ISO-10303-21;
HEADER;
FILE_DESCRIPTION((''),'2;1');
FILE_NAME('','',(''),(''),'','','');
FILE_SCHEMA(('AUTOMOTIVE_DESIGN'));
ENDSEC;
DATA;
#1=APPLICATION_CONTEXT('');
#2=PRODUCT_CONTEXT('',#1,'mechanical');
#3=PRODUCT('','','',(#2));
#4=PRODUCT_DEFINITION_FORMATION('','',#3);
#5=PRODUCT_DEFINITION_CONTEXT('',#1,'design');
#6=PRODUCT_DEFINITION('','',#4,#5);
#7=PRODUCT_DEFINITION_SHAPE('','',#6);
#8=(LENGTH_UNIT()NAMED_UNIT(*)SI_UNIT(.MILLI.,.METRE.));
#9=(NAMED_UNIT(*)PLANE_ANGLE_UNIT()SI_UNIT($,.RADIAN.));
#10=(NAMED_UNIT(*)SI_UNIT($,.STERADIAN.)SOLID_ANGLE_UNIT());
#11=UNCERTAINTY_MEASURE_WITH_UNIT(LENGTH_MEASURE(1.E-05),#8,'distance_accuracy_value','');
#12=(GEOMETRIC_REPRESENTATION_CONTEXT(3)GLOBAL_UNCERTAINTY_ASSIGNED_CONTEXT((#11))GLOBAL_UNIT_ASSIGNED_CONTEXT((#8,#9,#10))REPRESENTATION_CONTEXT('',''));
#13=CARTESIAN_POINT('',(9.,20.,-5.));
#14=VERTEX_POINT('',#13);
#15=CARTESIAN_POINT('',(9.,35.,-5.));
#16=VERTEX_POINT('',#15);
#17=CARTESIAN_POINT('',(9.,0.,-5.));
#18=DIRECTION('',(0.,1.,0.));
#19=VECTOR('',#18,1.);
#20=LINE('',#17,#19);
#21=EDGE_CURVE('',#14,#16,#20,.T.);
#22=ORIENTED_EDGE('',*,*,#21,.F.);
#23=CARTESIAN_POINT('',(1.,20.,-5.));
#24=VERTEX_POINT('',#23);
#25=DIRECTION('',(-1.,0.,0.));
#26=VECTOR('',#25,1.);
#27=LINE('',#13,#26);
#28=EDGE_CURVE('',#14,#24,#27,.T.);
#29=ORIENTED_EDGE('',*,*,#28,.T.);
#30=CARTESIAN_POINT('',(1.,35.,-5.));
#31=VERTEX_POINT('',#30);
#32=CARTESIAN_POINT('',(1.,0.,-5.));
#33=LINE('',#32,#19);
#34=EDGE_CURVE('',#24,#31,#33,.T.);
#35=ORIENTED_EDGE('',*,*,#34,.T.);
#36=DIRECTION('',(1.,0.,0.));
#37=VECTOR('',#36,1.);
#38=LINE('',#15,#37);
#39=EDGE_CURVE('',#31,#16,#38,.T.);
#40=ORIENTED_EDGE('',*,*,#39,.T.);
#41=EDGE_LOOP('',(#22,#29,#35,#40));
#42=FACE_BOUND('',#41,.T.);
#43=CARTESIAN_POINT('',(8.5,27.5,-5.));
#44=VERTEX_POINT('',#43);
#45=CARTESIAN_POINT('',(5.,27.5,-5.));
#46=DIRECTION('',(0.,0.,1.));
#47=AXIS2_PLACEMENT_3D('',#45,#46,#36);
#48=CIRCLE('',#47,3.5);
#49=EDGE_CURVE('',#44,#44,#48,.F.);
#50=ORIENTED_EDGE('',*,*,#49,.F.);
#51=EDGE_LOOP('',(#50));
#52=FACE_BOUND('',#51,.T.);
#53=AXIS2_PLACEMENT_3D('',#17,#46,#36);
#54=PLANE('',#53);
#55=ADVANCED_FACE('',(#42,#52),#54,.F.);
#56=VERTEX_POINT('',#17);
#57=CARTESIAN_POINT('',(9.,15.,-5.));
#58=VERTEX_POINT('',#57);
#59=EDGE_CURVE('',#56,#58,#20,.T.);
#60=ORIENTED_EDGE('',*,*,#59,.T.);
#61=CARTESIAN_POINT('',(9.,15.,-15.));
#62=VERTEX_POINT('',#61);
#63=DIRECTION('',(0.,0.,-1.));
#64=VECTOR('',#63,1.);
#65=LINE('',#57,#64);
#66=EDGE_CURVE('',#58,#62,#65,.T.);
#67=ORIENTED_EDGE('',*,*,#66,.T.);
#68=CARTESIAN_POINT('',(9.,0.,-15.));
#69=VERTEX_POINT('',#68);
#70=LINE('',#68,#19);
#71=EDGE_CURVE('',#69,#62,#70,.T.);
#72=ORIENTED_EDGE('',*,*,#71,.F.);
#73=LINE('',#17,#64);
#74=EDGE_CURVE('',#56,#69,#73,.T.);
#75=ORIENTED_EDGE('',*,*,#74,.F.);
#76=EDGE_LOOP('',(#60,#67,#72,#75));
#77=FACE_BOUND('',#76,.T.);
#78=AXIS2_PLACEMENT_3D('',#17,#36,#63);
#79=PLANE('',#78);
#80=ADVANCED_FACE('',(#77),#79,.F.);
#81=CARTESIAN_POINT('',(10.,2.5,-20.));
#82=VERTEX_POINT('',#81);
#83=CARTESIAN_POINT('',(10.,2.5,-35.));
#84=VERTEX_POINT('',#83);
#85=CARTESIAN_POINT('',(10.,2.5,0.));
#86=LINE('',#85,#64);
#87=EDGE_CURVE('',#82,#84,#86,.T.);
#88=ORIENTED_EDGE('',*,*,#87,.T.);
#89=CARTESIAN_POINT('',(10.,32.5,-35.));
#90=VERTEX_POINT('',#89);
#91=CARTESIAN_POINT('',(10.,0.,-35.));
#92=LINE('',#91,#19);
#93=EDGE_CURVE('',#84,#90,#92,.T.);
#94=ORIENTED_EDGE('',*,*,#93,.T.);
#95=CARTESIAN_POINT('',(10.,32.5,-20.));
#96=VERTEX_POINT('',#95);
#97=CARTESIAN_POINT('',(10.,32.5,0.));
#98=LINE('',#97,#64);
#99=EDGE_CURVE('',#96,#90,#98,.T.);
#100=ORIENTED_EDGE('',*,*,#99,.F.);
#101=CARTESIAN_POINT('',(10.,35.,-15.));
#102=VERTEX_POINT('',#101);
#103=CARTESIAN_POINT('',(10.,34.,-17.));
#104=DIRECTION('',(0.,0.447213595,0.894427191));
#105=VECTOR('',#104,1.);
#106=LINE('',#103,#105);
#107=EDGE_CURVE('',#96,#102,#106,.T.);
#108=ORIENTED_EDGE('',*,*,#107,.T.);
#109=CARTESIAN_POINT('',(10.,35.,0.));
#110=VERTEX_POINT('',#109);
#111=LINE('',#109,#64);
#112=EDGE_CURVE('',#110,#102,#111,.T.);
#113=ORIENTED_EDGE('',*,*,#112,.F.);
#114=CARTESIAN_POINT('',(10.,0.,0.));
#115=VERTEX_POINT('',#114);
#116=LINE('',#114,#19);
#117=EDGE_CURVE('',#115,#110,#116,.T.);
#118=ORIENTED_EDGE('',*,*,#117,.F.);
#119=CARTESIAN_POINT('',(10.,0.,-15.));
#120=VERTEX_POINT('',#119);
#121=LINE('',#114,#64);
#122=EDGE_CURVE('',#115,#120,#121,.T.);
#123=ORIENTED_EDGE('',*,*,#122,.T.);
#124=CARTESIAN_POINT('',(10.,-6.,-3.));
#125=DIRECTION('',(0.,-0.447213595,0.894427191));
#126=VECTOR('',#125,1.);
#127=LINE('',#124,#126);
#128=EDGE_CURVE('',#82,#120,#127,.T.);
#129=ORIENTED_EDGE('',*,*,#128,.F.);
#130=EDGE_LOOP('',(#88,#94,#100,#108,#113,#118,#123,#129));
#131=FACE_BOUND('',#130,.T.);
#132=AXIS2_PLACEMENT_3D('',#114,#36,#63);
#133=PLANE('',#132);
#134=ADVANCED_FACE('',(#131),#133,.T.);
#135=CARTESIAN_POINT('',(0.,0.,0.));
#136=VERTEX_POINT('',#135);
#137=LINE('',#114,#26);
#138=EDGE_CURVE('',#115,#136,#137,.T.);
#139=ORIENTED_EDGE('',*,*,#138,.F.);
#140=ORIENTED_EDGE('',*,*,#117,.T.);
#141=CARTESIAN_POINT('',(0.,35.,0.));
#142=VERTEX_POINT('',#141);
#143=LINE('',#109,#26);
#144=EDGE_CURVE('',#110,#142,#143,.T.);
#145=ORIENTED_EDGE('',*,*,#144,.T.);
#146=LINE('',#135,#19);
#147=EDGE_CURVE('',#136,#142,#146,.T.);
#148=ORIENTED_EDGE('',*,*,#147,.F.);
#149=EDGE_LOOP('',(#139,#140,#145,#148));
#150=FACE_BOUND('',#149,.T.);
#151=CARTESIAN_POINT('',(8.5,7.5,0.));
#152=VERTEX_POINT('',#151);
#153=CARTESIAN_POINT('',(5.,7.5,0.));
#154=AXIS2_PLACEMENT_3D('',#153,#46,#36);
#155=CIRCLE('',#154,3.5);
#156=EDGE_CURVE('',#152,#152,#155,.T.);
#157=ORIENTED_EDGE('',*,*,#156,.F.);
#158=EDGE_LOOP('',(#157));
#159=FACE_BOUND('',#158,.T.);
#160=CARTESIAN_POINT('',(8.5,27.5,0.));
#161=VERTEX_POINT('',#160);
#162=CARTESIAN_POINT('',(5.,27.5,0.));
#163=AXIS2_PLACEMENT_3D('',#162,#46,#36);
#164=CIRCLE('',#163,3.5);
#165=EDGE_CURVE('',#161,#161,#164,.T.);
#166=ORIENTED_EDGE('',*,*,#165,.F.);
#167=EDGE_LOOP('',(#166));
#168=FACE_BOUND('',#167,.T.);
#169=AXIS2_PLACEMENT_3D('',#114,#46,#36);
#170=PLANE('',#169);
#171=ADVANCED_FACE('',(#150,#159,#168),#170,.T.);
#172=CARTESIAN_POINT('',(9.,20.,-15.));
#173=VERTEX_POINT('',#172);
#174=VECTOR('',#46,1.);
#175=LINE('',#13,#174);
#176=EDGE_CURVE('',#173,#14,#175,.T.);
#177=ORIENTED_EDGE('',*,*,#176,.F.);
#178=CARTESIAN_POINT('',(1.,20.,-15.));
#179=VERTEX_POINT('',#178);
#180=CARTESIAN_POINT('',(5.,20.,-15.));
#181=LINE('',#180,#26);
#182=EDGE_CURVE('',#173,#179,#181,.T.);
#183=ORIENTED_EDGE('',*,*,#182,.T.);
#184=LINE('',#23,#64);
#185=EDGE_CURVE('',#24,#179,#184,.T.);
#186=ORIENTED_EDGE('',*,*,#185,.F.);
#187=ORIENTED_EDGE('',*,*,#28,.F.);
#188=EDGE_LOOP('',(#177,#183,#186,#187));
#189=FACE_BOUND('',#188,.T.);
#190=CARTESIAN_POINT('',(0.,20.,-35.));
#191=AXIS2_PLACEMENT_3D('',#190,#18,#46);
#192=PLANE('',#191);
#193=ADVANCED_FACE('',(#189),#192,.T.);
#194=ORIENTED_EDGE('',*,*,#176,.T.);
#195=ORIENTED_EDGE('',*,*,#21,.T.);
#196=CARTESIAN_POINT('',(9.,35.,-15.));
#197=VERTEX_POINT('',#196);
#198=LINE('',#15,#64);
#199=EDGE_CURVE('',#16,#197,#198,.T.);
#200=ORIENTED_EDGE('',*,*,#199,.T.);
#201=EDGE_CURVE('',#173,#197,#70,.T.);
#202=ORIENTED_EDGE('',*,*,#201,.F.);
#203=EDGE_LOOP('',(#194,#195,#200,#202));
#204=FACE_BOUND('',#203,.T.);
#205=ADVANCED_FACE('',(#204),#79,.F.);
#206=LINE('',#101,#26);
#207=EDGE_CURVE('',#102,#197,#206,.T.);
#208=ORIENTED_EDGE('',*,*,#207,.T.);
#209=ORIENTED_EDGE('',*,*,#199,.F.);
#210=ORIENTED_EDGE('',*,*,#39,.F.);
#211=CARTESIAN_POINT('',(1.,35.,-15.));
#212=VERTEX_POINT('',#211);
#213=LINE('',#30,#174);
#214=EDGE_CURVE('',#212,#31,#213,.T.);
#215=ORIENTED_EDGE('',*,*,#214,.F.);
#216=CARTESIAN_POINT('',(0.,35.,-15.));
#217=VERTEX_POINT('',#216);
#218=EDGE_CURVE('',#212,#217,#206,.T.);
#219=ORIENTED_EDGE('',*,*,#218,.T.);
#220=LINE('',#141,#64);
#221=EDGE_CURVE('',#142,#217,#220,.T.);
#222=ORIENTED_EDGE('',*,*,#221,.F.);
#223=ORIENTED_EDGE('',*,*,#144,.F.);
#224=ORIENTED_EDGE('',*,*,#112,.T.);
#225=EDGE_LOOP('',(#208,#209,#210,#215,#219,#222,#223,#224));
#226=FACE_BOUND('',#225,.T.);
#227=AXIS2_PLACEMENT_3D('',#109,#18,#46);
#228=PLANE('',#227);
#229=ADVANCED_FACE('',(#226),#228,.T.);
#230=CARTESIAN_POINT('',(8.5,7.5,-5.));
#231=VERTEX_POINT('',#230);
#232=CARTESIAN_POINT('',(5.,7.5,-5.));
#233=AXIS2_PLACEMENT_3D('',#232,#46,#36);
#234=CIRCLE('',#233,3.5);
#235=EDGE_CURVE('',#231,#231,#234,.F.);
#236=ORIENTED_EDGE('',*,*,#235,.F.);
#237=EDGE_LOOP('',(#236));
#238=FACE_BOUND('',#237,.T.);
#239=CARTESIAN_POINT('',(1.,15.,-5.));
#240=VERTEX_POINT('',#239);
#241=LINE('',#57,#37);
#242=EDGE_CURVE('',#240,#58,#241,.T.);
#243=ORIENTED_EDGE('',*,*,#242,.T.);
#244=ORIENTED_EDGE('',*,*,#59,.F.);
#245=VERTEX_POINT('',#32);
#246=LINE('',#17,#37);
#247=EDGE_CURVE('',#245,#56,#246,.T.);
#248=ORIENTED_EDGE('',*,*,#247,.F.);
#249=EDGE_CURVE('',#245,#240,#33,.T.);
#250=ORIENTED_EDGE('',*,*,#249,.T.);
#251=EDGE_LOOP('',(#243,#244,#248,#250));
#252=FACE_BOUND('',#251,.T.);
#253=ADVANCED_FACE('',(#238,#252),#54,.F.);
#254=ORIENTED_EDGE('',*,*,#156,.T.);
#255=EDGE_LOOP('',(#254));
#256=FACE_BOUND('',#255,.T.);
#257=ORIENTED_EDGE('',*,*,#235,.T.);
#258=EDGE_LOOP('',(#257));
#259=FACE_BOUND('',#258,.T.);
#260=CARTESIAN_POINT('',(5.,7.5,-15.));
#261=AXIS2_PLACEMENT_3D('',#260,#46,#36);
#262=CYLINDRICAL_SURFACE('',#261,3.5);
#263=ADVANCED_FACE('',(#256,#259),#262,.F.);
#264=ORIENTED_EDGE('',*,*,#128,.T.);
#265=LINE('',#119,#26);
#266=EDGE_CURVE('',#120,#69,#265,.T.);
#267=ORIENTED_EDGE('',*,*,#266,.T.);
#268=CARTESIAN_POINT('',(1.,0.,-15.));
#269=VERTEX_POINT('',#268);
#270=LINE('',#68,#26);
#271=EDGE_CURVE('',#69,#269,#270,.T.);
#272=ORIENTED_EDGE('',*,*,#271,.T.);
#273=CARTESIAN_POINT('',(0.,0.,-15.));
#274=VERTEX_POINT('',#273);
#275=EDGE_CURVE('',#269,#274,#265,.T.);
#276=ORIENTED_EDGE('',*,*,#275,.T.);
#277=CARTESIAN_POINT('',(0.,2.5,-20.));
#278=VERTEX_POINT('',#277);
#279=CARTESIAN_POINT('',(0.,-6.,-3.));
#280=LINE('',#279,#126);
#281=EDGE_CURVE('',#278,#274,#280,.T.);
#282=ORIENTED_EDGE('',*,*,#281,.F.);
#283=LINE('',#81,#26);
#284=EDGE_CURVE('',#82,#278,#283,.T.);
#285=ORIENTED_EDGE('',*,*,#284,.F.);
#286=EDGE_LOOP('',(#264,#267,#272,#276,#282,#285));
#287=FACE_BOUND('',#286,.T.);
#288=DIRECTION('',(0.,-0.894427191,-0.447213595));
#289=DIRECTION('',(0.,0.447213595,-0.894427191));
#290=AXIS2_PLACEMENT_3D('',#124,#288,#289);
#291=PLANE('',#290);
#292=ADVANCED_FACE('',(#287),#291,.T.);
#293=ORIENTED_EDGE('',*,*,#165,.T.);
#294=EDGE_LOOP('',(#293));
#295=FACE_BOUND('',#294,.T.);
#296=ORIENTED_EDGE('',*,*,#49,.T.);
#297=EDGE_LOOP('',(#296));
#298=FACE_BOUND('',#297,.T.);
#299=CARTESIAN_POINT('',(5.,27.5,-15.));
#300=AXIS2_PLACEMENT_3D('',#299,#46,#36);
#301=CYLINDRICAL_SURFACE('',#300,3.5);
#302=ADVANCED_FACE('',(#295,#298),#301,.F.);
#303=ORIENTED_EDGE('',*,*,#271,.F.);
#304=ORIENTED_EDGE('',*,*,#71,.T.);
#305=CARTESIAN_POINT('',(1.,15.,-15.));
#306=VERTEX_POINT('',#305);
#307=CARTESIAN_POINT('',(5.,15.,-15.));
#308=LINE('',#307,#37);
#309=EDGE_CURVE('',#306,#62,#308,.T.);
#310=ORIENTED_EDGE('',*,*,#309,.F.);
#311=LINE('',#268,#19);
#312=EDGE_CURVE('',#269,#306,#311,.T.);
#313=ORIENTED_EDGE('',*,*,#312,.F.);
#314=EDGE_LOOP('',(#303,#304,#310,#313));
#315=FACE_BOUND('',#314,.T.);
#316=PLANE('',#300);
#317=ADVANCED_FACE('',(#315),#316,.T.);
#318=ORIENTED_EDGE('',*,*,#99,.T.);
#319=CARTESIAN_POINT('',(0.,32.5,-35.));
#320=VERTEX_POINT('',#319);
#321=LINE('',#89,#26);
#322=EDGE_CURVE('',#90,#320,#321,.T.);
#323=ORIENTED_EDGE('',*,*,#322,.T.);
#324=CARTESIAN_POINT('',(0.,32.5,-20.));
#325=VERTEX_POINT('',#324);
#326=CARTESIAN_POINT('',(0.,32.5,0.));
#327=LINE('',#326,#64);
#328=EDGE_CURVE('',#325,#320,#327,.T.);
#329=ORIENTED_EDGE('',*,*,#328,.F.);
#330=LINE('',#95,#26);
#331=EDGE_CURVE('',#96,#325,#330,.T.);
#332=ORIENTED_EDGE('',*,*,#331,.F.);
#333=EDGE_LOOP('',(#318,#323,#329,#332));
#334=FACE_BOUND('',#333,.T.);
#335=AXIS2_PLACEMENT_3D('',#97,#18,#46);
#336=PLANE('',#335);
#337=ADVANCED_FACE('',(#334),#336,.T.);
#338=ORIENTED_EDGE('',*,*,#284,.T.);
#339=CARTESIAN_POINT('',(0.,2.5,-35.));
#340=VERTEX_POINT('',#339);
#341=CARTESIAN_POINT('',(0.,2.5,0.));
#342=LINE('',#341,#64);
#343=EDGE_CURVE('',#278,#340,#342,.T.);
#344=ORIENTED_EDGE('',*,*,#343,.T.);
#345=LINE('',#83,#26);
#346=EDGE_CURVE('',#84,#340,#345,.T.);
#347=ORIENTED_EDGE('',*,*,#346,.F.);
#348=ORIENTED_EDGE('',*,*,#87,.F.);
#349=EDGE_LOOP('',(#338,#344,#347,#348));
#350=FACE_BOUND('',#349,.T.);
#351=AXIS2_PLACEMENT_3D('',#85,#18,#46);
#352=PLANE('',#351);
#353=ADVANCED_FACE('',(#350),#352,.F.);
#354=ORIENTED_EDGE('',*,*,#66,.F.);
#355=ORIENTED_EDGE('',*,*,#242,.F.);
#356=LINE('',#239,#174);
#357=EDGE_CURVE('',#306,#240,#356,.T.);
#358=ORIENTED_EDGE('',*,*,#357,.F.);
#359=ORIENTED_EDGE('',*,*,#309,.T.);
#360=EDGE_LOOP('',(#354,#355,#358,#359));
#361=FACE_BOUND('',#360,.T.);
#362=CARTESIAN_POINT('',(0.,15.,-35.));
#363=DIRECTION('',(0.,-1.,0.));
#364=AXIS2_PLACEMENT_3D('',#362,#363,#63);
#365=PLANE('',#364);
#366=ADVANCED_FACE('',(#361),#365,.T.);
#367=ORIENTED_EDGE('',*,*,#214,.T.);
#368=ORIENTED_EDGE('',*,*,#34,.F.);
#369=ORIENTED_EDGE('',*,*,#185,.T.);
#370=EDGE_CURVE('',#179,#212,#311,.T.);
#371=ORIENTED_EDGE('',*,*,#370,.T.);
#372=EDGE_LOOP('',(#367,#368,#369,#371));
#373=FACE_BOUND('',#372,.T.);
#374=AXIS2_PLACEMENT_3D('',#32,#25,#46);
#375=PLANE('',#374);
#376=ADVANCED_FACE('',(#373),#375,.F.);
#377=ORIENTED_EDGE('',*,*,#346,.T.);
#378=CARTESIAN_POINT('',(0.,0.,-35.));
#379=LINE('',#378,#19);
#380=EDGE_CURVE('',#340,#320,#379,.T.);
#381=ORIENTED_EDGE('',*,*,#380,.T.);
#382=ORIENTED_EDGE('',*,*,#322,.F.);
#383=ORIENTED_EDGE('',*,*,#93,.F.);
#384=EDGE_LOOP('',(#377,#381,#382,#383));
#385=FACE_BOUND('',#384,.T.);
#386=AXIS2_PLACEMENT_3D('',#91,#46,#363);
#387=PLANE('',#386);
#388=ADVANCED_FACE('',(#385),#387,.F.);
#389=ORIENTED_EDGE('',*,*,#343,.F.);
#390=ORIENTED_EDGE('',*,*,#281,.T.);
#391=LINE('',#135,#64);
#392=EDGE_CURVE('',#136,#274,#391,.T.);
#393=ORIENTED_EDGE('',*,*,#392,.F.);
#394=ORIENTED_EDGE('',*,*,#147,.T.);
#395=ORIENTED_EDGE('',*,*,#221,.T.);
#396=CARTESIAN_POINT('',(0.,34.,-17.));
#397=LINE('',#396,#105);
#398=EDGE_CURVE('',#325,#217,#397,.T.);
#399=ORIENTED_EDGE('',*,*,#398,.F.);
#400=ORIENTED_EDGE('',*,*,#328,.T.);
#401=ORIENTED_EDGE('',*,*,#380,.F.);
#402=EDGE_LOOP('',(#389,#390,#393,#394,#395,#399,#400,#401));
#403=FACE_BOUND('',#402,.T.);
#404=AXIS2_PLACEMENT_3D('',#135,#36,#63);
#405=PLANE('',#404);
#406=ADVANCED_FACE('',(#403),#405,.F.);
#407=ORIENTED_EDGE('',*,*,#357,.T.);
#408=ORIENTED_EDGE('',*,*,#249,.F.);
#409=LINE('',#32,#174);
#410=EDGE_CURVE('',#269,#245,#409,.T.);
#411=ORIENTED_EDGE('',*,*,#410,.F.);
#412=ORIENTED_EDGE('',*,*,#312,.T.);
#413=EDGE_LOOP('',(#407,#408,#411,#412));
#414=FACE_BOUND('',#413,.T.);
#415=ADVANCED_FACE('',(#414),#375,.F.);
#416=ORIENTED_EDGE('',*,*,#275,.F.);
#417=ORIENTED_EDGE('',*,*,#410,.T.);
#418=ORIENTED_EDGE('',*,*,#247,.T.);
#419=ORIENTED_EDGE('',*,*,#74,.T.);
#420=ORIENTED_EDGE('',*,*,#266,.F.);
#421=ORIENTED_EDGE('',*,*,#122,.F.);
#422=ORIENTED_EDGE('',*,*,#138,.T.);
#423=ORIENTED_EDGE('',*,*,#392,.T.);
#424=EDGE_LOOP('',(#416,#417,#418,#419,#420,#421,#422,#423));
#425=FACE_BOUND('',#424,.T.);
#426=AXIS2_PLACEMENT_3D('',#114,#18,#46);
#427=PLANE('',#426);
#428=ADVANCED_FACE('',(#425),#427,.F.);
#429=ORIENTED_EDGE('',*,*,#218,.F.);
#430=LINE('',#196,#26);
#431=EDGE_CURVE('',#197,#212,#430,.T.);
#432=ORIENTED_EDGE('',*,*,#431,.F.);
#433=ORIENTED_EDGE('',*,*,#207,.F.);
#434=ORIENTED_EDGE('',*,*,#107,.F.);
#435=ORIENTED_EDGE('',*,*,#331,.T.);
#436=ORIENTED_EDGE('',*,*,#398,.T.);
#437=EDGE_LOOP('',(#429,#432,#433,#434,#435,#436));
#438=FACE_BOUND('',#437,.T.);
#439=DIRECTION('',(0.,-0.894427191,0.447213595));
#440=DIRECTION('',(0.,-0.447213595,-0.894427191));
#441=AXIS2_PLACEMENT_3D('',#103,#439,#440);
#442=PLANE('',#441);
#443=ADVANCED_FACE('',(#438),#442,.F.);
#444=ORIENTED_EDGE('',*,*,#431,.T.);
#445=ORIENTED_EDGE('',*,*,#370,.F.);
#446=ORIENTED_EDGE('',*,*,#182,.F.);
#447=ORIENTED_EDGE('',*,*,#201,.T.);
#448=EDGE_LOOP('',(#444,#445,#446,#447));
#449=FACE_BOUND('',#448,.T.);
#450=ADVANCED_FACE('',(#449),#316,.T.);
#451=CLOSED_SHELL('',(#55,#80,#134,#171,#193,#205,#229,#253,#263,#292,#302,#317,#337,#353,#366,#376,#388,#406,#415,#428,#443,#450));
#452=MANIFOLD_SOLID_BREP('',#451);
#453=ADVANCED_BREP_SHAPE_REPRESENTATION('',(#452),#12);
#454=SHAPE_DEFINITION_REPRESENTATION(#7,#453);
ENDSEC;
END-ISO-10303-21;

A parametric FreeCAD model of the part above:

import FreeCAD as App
import Part
import Sketcher
from FreeCAD import Vector


def add_polygon(sketch, points):
    """Adds a closed chain of lines whose ends are joined by coincident constraints."""
    first, n = sketch.GeometryCount, len(points)
    for a, b in zip(points, points[1:] + points[:1]):
        sketch.addGeometry(Part.LineSegment(App.Vector(*a, 0), App.Vector(*b, 0)), False)
    for i in range(n):
        sketch.addConstraint(Sketcher.Constraint("Coincident", first + i, 2, first + (i + 1) % n, 1))

doc = App.newDocument("Part")
body = doc.addObject("PartDesign::Body", "Body")

# Sketch on YZ plane
sketch1 = doc.addObject("Sketcher::SketchObject", "Sketch")
body.addObject(sketch1)
sketch1.AttachmentSupport = (doc.YZ_Plane, [""])
sketch1.MapMode = "FlatFace"
add_polygon(sketch1, [(2, -20), (2, -35), (32, -35), (32, -20), (35, -15), (35, 0), (0, 0), (0, -15)])  # lines 0-7
sketch1.addConstraint(Sketcher.Constraint("Vertical", 0))
sketch1.addConstraint(Sketcher.Constraint("Horizontal", 1))
sketch1.addConstraint(Sketcher.Constraint("Vertical", 2))
sketch1.addConstraint(Sketcher.Constraint("Vertical", 4))
sketch1.addConstraint(Sketcher.Constraint("Horizontal", 5))
sketch1.addConstraint(Sketcher.Constraint("Vertical", 6))
sketch1.addConstraint(Sketcher.Constraint("Coincident", 5, 2, -1, 1))
sketch1.addConstraint(Sketcher.Constraint("Horizontal", 3, 2, 6, 2))
sketch1.addConstraint(Sketcher.Constraint("Horizontal", 2, 2, 7, 2))
sketch1.addConstraint(Sketcher.Constraint("Equal", 2, 4))
sketch1.addConstraint(Sketcher.Constraint("Equal", 3, 7))
sketch1.addConstraint(Sketcher.Constraint("DistanceX", 1, 1, 1, 2, 30.0))
sketch1.addConstraint(Sketcher.Constraint("DistanceX", 5, 2, 5, 1, 35.0))
sketch1.addConstraint(Sketcher.Constraint("DistanceY", 0, 2, 0, 1, 15.0))
sketch1.addConstraint(Sketcher.Constraint("DistanceY", 0, 2, -1, 1, 35.0))
pad1 = doc.addObject("PartDesign::Pad", "Pad")
body.addObject(pad1)
pad1.Profile = sketch1
pad1.Length = 10

# Sketch on XY plane
sketch2 = doc.addObject("Sketcher::SketchObject", "Sketch001")
body.addObject(sketch2)
sketch2.AttachmentSupport = (doc.XY_Plane, [""])
sketch2.MapMode = "FlatFace"
sketch2.addGeometry(Part.Circle(Vector(5, 27.5, 0), Vector(0, 0, 1), 3.5), False)
sketch2.addGeometry(Part.Circle(Vector(5, 7.5, 0), Vector(0, 0, 1), 3.5), False)
sketch2.addConstraint(Sketcher.Constraint("Equal", 0, 1))
sketch2.addConstraint(Sketcher.Constraint("Vertical", 0, 3, 1, 3))
sketch2.addConstraint(Sketcher.Constraint("Diameter", 0, 7.0))
sketch2.addConstraint(Sketcher.Constraint("DistanceX", -1, 1, 0, 3, 5.0))
sketch2.addConstraint(Sketcher.Constraint("DistanceY", 1, 3, 0, 3, 20.0))
sketch2.addConstraint(Sketcher.Constraint("DistanceY", -1, 1, 0, 3, 27.5))
pocket1 = doc.addObject("PartDesign::Pocket", "Pocket")
body.addObject(pocket1)
pocket1.Profile = sketch2
pocket1.Length = 15

# Sketch on XZ plane
sketch3 = doc.addObject("Sketcher::SketchObject", "Sketch002")
body.addObject(sketch3)
sketch3.AttachmentSupport = (doc.XZ_Plane, [""])
sketch3.MapMode = "FlatFace"
sketch3.AttachmentOffset = App.Placement(Vector(0, 0, -35), App.Rotation())
add_polygon(sketch3, [(1, -15), (1, -5), (9, -5), (9, -15)])  # lines 0-3
sketch3.addConstraint(Sketcher.Constraint("Vertical", 0))
sketch3.addConstraint(Sketcher.Constraint("Horizontal", 1))
sketch3.addConstraint(Sketcher.Constraint("Vertical", 2))
sketch3.addConstraint(Sketcher.Constraint("Horizontal", 3))
sketch3.addConstraint(Sketcher.Constraint("DistanceX", 1, 1, 1, 2, 8.0))
sketch3.addConstraint(Sketcher.Constraint("DistanceY", 0, 1, 0, 2, 10.0))
sketch3.addConstraint(Sketcher.Constraint("DistanceX", -1, 1, 0, 2, 1.0))
sketch3.addConstraint(Sketcher.Constraint("DistanceY", 0, 2, -1, 1, 5.0))
pocket2 = doc.addObject("PartDesign::Pocket", "Pocket001")
body.addObject(pocket2)
pocket2.Profile = sketch3
pocket2.Length = 35
pocket2.Reversed = True

# Sketch on XY plane
sketch4 = doc.addObject("Sketcher::SketchObject", "Sketch003")
body.addObject(sketch4)
sketch4.AttachmentSupport = (doc.XY_Plane, [""])
sketch4.MapMode = "FlatFace"
add_polygon(sketch4, [(0, 20), (0, 15), (10, 15), (10, 20)])  # lines 0-3
sketch4.addConstraint(Sketcher.Constraint("Vertical", 0))
sketch4.addConstraint(Sketcher.Constraint("Horizontal", 1))
sketch4.addConstraint(Sketcher.Constraint("Vertical", 2))
sketch4.addConstraint(Sketcher.Constraint("Horizontal", 3))
sketch4.addConstraint(Sketcher.Constraint("PointOnObject", 0, 2, -2))
sketch4.addConstraint(Sketcher.Constraint("DistanceX", 1, 1, 1, 2, 10.0))
sketch4.addConstraint(Sketcher.Constraint("DistanceY", 0, 2, 0, 1, 5.0))
sketch4.addConstraint(Sketcher.Constraint("DistanceY", -1, 1, 0, 2, 15.0))
pad2 = doc.addObject("PartDesign::Pad", "Pad001")
body.addObject(pad2)
pad2.Profile = sketch4
pad2.Length = 35
pad2.Reversed = True

doc.recompute()
